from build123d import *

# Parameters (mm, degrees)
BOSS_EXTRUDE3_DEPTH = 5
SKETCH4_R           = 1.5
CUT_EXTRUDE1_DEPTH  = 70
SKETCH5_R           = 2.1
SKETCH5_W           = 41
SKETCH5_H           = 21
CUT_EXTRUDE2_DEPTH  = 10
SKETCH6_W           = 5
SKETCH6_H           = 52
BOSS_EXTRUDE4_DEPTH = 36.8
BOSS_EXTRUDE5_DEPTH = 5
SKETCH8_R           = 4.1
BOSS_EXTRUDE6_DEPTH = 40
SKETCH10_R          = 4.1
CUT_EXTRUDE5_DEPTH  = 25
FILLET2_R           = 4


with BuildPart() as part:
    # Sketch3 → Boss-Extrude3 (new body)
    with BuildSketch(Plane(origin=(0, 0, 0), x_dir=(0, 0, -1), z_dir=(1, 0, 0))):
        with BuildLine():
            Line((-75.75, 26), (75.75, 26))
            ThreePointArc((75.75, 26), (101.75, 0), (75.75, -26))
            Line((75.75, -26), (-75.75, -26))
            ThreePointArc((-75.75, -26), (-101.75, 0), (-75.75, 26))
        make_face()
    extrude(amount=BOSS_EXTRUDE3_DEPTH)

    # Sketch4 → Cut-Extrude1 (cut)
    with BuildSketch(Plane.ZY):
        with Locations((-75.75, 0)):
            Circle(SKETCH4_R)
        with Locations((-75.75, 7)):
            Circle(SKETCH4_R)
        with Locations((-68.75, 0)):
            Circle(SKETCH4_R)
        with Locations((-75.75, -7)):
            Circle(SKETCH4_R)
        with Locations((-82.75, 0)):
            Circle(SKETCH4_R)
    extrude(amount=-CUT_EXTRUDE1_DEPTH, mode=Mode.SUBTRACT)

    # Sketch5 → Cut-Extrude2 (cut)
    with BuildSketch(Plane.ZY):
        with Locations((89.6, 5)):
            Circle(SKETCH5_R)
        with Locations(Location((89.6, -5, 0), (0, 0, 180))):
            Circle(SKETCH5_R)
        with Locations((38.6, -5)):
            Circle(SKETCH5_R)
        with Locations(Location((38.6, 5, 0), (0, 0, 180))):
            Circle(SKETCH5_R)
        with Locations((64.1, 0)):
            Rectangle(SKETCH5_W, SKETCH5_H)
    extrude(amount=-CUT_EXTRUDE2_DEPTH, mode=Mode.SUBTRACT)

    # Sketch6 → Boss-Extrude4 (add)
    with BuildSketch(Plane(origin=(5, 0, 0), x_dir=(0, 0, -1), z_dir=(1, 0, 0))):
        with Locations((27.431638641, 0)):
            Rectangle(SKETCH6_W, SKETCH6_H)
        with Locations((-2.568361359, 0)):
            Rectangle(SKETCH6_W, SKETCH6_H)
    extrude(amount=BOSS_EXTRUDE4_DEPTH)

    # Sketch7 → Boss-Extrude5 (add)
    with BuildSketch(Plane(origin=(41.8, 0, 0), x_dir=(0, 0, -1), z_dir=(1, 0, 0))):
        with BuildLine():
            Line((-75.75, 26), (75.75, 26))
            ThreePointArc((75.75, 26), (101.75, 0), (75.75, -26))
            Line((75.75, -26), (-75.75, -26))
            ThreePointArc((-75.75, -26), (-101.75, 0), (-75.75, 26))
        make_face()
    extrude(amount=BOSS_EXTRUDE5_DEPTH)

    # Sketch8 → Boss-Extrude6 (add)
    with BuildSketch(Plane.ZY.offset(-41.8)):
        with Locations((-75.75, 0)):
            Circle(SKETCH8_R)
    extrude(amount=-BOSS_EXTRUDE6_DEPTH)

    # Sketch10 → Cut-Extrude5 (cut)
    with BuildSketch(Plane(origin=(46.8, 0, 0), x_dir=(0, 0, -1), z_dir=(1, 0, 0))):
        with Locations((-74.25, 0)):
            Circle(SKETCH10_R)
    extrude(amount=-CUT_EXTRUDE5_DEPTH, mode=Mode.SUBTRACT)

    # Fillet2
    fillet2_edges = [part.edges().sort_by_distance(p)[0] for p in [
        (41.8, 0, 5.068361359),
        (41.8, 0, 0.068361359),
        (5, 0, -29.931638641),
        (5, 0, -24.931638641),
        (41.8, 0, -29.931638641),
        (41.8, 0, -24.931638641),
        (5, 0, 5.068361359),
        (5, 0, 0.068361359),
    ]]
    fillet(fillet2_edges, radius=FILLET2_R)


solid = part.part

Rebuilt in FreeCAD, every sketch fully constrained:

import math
import FreeCAD as App
import Part
import Sketcher

V = App.Vector
Q = App.Units.Quantity


def edges_at(feature, points):
    """Names of the edges that pass closest to the given points."""
    edges = feature.Shape.Edges
    near = lambda p: min(range(len(edges)), key=lambda i: edges[i].distToShape(Part.Vertex(*p))[0])
    return sorted({f"Edge{near(p) + 1}" for p in points})


def add_polygon(sketch, points):
    """Adds a closed chain of lines whose ends are joined by coincident constraints."""
    first, n = sketch.GeometryCount, len(points)
    for a, b in zip(points, points[1:] + points[:1]):
        sketch.addGeometry(Part.LineSegment(App.Vector(*a, 0), App.Vector(*b, 0)), False)
    for i in range(n):
        sketch.addConstraint(Sketcher.Constraint("Coincident", first + i, 2, first + (i + 1) % n, 1))

doc = App.newDocument("Part")
params = doc.addObject("Spreadsheet::Sheet", "Params")
for row, (alias, value) in enumerate([
    ("sketch1_radius", "26 mm"),
    ("sketch1_height", "151.5 mm"),
    ("pad1_length", "5 mm"),
    ("sketch2_diameter", "3 mm"),
    ("pocket1_length", "70 mm"),
    ("sketch3_diameter", "4.2 mm"),
    ("sketch3_width", "21 mm"),
    ("sketch3_height", "41 mm"),
    ("pocket2_length", "10 mm"),
    ("sketch4_width", "52 mm"),
    ("sketch4_height", "5 mm"),
    ("pad2_length", "36.8 mm"),
    ("sketch5_radius", "26 mm"),
    ("sketch5_height", "151.5 mm"),
    ("pad3_length", "5 mm"),
    ("sketch6_diameter", "8.2 mm"),
    ("pad4_length", "40 mm"),
    ("sketch7_diameter", "8.2 mm"),
    ("pocket3_length", "25 mm"),
    ("fillet_radius", "4 mm"),
], start=1):
    params.set(f"A{row}", alias)
    params.set(f"B{row}", "=" + value)
    params.setAlias(f"B{row}", alias)

body = doc.addObject("PartDesign::Body", "Body")

sketch1 = doc.addObject("Sketcher::SketchObject", "Sketch")
body.addObject(sketch1)
sketch1.AttachmentSupport = (doc.YZ_Plane, [""])
sketch1.MapMode = "FlatFace"
sketch1.addGeometry(Part.LineSegment(V(26, -76, 0), V(26, 76, 0)), False)
sketch1.addGeometry(Part.ArcOfCircle(Part.Circle(V(0, 76, 0), V(0, 0, 1), 26), math.radians(0), math.radians(180)), False)
sketch1.addGeometry(Part.LineSegment(V(-26, 76, 0), V(-26, -76, 0)), False)
sketch1.addGeometry(Part.ArcOfCircle(Part.Circle(V(0, -76, 0), V(0, 0, 1), 26), math.radians(180), math.radians(360)), False)
sketch1.addConstraint(Sketcher.Constraint("Tangent", 0, 2, 1, 1))
sketch1.addConstraint(Sketcher.Constraint("Tangent", 1, 2, 2, 1))
sketch1.addConstraint(Sketcher.Constraint("Tangent", 2, 2, 3, 1))
sketch1.addConstraint(Sketcher.Constraint("Tangent", 3, 2, 0, 1))
sketch1.addConstraint(Sketcher.Constraint("Vertical", 0))
sketch1.addConstraint(Sketcher.Constraint("Vertical", 2))
sketch1.addConstraint(Sketcher.Constraint("Symmetric", 1, 3, 3, 3, -1, 1))
sketch1.addConstraint(Sketcher.Constraint("Radius", 1, Q("26 mm")))
sketch1.addConstraint(Sketcher.Constraint("DistanceY", 0, 1, 0, 2, Q("151.5 mm")))
sketch1.setExpression("Constraints[7]", "Params.sketch1_radius")
sketch1.setExpression("Constraints[8]", "Params.sketch1_height")
pad1 = doc.addObject("PartDesign::Pad", "Pad")
body.addObject(pad1)
pad1.Profile = sketch1
pad1.setExpression("Length", "Params.pad1_length")

sketch2 = doc.addObject("Sketcher::SketchObject", "Sketch001")
body.addObject(sketch2)
sketch2.AttachmentSupport = (doc.YZ_Plane, [""])
sketch2.MapMode = "FlatFace"
sketch2.addGeometry(Part.Circle(V(0, -75.8, 0), V(0, 0, 1), 1.5), False)
sketch2.addGeometry(Part.Circle(V(7, -75.8, 0), V(0, 0, 1), 1.5), False)
sketch2.addGeometry(Part.Circle(V(0, -68.8, 0), V(0, 0, 1), 1.5), False)
sketch2.addGeometry(Part.Circle(V(-7, -75.8, 0), V(0, 0, 1), 1.5), False)
sketch2.addGeometry(Part.Circle(V(0, -82.8, 0), V(0, 0, 1), 1.5), False)
sketch2.addConstraint(Sketcher.Constraint("Equal", 0, 1))
sketch2.addConstraint(Sketcher.Constraint("Equal", 1, 2))
sketch2.addConstraint(Sketcher.Constraint("Equal", 2, 3))
sketch2.addConstraint(Sketcher.Constraint("Equal", 3, 4))
sketch2.addConstraint(Sketcher.Constraint("Symmetric", 1, 3, 3, 3, -2))
sketch2.addConstraint(Sketcher.Constraint("PointOnObject", 0, 3, -2))
sketch2.addConstraint(Sketcher.Constraint("PointOnObject", 2, 3, -2))
sketch2.addConstraint(Sketcher.Constraint("PointOnObject", 4, 3, -2))
sketch2.addConstraint(Sketcher.Constraint("Horizontal", 0, 3, 1, 3))
sketch2.addConstraint(Sketcher.Constraint("Diameter", 0, Q("3 mm")))
sketch2.addConstraint(Sketcher.Constraint("DistanceX", -1, 1, 1, 3, Q("7 mm")))
sketch2.addConstraint(Sketcher.Constraint("DistanceY", 0, 3, 2, 3, Q("7 mm")))
sketch2.addConstraint(Sketcher.Constraint("DistanceY", 4, 3, 0, 3, Q("7 mm")))
sketch2.addConstraint(Sketcher.Constraint("DistanceY", 0, 3, -1, 1, Q("75.75 mm")))
sketch2.setExpression("Constraints[9]", "Params.sketch2_diameter")
pocket1 = doc.addObject("PartDesign::Pocket", "Pocket")
body.addObject(pocket1)
pocket1.Profile = sketch2
pocket1.setExpression("Length", "Params.pocket1_length")
pocket1.Reversed = True

sketch3 = doc.addObject("Sketcher::SketchObject", "Sketch002")
body.addObject(sketch3)
sketch3.AttachmentSupport = (doc.YZ_Plane, [""])
sketch3.MapMode = "FlatFace"
sketch3.addGeometry(Part.Circle(V(5, 89.6, 0), V(0, 0, 1), 2.1), False)
sketch3.addGeometry(Part.Circle(V(-5, 89.6, 0), V(0, 0, 1), 2.1), False)
sketch3.addGeometry(Part.Circle(V(-5, 38.6, 0), V(0, 0, 1), 2.1), False)
sketch3.addGeometry(Part.Circle(V(5, 38.6, 0), V(0, 0, 1), 2.1), False)
add_polygon(sketch3, [(10.5, 43.6), (-10.5, 43.6), (-10.5, 84.6), (10.5, 84.6)])
sketch3.addConstraint(Sketcher.Constraint("Horizontal", 4))
sketch3.addConstraint(Sketcher.Constraint("Vertical", 5))
sketch3.addConstraint(Sketcher.Constraint("Horizontal", 6))
sketch3.addConstraint(Sketcher.Constraint("Vertical", 7))
sketch3.addConstraint(Sketcher.Constraint("Equal", 0, 1))
sketch3.addConstraint(Sketcher.Constraint("Equal", 1, 2))
sketch3.addConstraint(Sketcher.Constraint("Equal", 2, 3))
sketch3.addConstraint(Sketcher.Constraint("Symmetric", 0, 3, 1, 3, -2))
sketch3.addConstraint(Sketcher.Constraint("Symmetric", 2, 3, 3, 3, -2))
sketch3.addConstraint(Sketcher.Constraint("Vertical", 1, 3, 2, 3))
sketch3.addConstraint(Sketcher.Constraint("Diameter", 0, Q("4.2 mm")))
sketch3.addConstraint(Sketcher.Constraint("DistanceX", 4, 2, 4, 1, Q("21 mm")))
sketch3.addConstraint(Sketcher.Constraint("DistanceY", 5, 1, 5, 2, Q("41 mm")))
sketch3.addConstraint(Sketcher.Constraint("DistanceX", -1, 1, 0, 3, Q("5 mm")))
sketch3.addConstraint(Sketcher.Constraint("DistanceY", 2, 3, 1, 3, Q("51 mm")))
sketch3.addConstraint(Sketcher.Constraint("DistanceY", 2, 3, 4, 2, Q("5 mm")))
sketch3.addConstraint(Sketcher.Constraint("DistanceY", -1, 1, 0, 3, Q("89.6 mm")))
sketch3.addConstraint(Sketcher.Constraint("DistanceX", 4, 2, -1, 1, Q("10.5 mm")))
sketch3.setExpression("Constraints[14]", "Params.sketch3_diameter")
sketch3.setExpression("Constraints[15]", "Params.sketch3_width")
sketch3.setExpression("Constraints[16]", "Params.sketch3_height")
pocket2 = doc.addObject("PartDesign::Pocket", "Pocket001")
body.addObject(pocket2)
pocket2.Profile = sketch3
pocket2.setExpression("Length", "Params.pocket2_length")
pocket2.Reversed = True

sketch4 = doc.addObject("Sketcher::SketchObject", "Sketch003")
body.addObject(sketch4)
sketch4.AttachmentSupport = (doc.YZ_Plane, [""])
sketch4.MapMode = "FlatFace"
sketch4.AttachmentOffset = App.Placement(V(0, 0, 5), App.Rotation())
add_polygon(sketch4, [(26, -25), (-26, -25), (-26, -30), (26, -30)])
add_polygon(sketch4, [(26, 5), (-26, 5), (-26, 0), (26, 0)])
sketch4.addConstraint(Sketcher.Constraint("Horizontal", 0))
sketch4.addConstraint(Sketcher.Constraint("Vertical", 1))
sketch4.addConstraint(Sketcher.Constraint("Horizontal", 2))
sketch4.addConstraint(Sketcher.Constraint("Vertical", 3))
sketch4.addConstraint(Sketcher.Constraint("Horizontal", 4))
sketch4.addConstraint(Sketcher.Constraint("Vertical", 5))
sketch4.addConstraint(Sketcher.Constraint("Horizontal", 6))
sketch4.addConstraint(Sketcher.Constraint("Vertical", 7))
sketch4.addConstraint(Sketcher.Constraint("Vertical", 1, 2, 4, 2))
sketch4.addConstraint(Sketcher.Constraint("Vertical", 3, 2, 6, 2))
sketch4.addConstraint(Sketcher.Constraint("Equal", 3, 5))
sketch4.addConstraint(Sketcher.Constraint("DistanceX", 0, 2, 0, 1, Q("52 mm")))
sketch4.addConstraint(Sketcher.Constraint("DistanceY", 1, 2, 1, 1, Q("5 mm")))
sketch4.addConstraint(Sketcher.Constraint("DistanceX", 0, 2, -1, 1, Q("26 mm")))
sketch4.addConstraint(Sketcher.Constraint("DistanceY", 0, 2, 4, 2, Q("30 mm")))
sketch4.addConstraint(Sketcher.Constraint("DistanceY", 0, 2, -1, 1, Q("24.931639 mm")))
sketch4.setExpression("Constraints[19]", "Params.sketch4_width")
sketch4.setExpression("Constraints[20]", "Params.sketch4_height")
pad2 = doc.addObject("PartDesign::Pad", "Pad001")
body.addObject(pad2)
pad2.Profile = sketch4
pad2.setExpression("Length", "Params.pad2_length")

sketch5 = doc.addObject("Sketcher::SketchObject", "Sketch004")
body.addObject(sketch5)
sketch5.AttachmentSupport = (doc.YZ_Plane, [""])
sketch5.MapMode = "FlatFace"
sketch5.AttachmentOffset = App.Placement(V(0, 0, 41.8), App.Rotation())
sketch5.addGeometry(Part.LineSegment(V(26, -76, 0), V(26, 76, 0)), False)
sketch5.addGeometry(Part.ArcOfCircle(Part.Circle(V(0, 76, 0), V(0, 0, 1), 26), math.radians(0), math.radians(180)), False)
sketch5.addGeometry(Part.LineSegment(V(-26, 76, 0), V(-26, -76, 0)), False)
sketch5.addGeometry(Part.ArcOfCircle(Part.Circle(V(0, -76, 0), V(0, 0, 1), 26), math.radians(180), math.radians(360)), False)
sketch5.addConstraint(Sketcher.Constraint("Tangent", 0, 2, 1, 1))
sketch5.addConstraint(Sketcher.Constraint("Tangent", 1, 2, 2, 1))
sketch5.addConstraint(Sketcher.Constraint("Tangent", 2, 2, 3, 1))
sketch5.addConstraint(Sketcher.Constraint("Tangent", 3, 2, 0, 1))
sketch5.addConstraint(Sketcher.Constraint("Vertical", 0))
sketch5.addConstraint(Sketcher.Constraint("Vertical", 2))
sketch5.addConstraint(Sketcher.Constraint("Symmetric", 1, 3, 3, 3, -1, 1))
sketch5.addConstraint(Sketcher.Constraint("Radius", 1, Q("26 mm")))
sketch5.addConstraint(Sketcher.Constraint("DistanceY", 0, 1, 0, 2, Q("151.5 mm")))
sketch5.setExpression("Constraints[7]", "Params.sketch5_radius")
sketch5.setExpression("Constraints[8]", "Params.sketch5_height")
pad3 = doc.addObject("PartDesign::Pad", "Pad002")
body.addObject(pad3)
pad3.Profile = sketch5
pad3.setExpression("Length", "Params.pad3_length")

sketch6 = doc.addObject("Sketcher::SketchObject", "Sketch005")
body.addObject(sketch6)
sketch6.AttachmentSupport = (doc.YZ_Plane, [""])
sketch6.MapMode = "FlatFace"
sketch6.AttachmentOffset = App.Placement(V(0, 0, 41.8), App.Rotation())
sketch6.addGeometry(Part.Circle(V(0, -75.8, 0), V(0, 0, 1), 4.1), False)
sketch6.addConstraint(Sketcher.Constraint("PointOnObject", 0, 3, -2))
sketch6.addConstraint(Sketcher.Constraint("Diameter", 0, Q("8.2 mm")))
sketch6.addConstraint(Sketcher.Constraint("DistanceY", 0, 3, -1, 1, Q("75.75 mm")))
sketch6.setExpression("Constraints[1]", "Params.sketch6_diameter")
pad4 = doc.addObject("PartDesign::Pad", "Pad003")
body.addObject(pad4)
pad4.Profile = sketch6
pad4.setExpression("Length", "Params.pad4_length")

sketch7 = doc.addObject("Sketcher::SketchObject", "Sketch006")
body.addObject(sketch7)
sketch7.AttachmentSupport = (doc.YZ_Plane, [""])
sketch7.MapMode = "FlatFace"
sketch7.AttachmentOffset = App.Placement(V(0, 0, 46.8), App.Rotation())
sketch7.addGeometry(Part.Circle(V(0, 74.2, 0), V(0, 0, 1), 4.1), False)
sketch7.addConstraint(Sketcher.Constraint("PointOnObject", 0, 3, -2))
sketch7.addConstraint(Sketcher.Constraint("Diameter", 0, Q("8.2 mm")))
sketch7.addConstraint(Sketcher.Constraint("DistanceY", -1, 1, 0, 3, Q("74.25 mm")))
sketch7.setExpression("Constraints[1]", "Params.sketch7_diameter")
pocket3 = doc.addObject("PartDesign::Pocket", "Pocket002")
body.addObject(pocket3)
pocket3.Profile = sketch7
pocket3.setExpression("Length", "Params.pocket3_length")
doc.recompute()

fillet = doc.addObject("PartDesign::Fillet", "Fillet")
body.addObject(fillet)
fillet.Base = (pocket3, edges_at(pocket3, [
    (41.8, 0, 5.068),
    (41.8, 0, 0.068),
    (5, 0, -29.932),
    (5, 0, -24.932),
    (41.8, 0, -29.932),
    (41.8, 0, -24.932),
    (5, 0, 5.068),
    (5, 0, 0.068),
]))
fillet.setExpression("Radius", "Params.fillet_radius")

doc.recompute()
